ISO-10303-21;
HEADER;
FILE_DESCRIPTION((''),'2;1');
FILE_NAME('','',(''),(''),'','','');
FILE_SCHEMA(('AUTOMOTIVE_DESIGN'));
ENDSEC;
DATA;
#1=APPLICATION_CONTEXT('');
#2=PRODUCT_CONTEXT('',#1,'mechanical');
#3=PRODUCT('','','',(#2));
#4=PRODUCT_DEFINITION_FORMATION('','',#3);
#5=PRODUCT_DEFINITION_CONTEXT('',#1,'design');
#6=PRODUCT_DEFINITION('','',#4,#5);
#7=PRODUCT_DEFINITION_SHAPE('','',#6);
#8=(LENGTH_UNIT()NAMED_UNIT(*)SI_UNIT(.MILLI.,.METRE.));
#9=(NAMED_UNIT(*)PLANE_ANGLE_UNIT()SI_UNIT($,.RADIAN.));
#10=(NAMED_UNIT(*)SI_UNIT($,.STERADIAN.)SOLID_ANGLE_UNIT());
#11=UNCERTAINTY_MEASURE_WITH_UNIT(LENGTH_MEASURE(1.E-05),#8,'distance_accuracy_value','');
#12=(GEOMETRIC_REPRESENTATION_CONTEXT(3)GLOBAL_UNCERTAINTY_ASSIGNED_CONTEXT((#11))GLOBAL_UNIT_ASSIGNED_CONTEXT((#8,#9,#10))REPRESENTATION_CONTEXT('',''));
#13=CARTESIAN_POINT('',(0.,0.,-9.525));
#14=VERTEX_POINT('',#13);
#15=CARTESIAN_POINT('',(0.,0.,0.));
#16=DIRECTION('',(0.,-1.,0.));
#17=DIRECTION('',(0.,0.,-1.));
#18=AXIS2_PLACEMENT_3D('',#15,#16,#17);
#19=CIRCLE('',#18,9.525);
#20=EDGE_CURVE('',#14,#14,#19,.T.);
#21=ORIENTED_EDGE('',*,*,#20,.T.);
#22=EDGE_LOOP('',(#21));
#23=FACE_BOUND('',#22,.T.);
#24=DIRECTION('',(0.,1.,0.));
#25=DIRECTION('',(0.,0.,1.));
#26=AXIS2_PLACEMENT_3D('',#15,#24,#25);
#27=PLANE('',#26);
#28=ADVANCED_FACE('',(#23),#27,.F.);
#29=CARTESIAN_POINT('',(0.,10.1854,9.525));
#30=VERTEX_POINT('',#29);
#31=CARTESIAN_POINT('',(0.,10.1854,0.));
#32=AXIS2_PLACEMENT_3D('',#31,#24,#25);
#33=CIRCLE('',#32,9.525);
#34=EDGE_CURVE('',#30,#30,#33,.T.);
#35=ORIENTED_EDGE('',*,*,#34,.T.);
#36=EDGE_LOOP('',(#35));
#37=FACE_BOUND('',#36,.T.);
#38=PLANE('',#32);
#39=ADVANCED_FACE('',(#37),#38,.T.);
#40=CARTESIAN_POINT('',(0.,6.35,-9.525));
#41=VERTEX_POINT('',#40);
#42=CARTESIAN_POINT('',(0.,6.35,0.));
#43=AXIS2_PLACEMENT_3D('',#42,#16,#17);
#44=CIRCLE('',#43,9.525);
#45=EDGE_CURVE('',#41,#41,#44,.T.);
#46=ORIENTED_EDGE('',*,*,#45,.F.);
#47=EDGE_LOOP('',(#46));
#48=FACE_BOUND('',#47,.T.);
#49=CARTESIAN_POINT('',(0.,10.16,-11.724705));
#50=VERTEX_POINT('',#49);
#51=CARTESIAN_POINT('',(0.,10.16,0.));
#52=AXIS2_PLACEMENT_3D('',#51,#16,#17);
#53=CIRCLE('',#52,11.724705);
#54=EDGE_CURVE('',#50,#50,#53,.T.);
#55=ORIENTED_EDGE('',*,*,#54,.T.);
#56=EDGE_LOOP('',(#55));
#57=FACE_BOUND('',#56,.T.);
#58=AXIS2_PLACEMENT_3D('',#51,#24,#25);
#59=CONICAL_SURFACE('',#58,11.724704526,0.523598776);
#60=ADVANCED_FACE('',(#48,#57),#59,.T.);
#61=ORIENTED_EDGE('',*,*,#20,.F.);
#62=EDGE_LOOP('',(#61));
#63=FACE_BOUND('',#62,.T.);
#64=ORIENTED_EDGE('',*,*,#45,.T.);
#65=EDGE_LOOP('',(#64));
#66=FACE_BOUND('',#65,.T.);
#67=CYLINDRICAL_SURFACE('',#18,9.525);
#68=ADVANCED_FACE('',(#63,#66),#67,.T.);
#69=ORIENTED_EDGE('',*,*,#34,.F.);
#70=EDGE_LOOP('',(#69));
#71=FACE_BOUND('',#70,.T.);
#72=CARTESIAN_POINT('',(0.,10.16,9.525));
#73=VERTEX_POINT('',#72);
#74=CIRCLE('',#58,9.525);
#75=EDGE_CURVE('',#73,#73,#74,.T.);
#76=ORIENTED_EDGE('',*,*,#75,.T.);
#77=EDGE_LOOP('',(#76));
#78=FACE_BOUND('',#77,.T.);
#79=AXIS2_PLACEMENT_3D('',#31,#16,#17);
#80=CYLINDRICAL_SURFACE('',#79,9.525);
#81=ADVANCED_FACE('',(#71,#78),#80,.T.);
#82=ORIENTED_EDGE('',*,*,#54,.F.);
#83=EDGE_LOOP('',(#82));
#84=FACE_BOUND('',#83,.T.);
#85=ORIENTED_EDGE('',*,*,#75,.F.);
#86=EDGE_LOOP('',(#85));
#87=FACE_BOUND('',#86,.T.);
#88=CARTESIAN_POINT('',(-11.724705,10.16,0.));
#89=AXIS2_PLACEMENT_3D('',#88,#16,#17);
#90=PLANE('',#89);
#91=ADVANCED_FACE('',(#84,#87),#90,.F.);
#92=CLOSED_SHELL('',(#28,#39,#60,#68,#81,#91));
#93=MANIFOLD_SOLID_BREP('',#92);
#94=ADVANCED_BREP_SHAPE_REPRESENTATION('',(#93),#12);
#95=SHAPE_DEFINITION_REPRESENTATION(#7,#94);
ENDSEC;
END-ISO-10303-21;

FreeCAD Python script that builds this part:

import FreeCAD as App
import Part
import Sketcher
from FreeCAD import Vector
Q = App.Units.Quantity


def add_polygon(sketch, points):
    """Adds a closed chain of lines whose ends are joined by coincident constraints."""
    first, n = sketch.GeometryCount, len(points)
    for a, b in zip(points, points[1:] + points[:1]):
        sketch.addGeometry(Part.LineSegment(App.Vector(*a, 0), App.Vector(*b, 0)), False)
    for i in range(n):
        sketch.addConstraint(Sketcher.Constraint("Coincident", first + i, 2, first + (i + 1) % n, 1))

doc = App.newDocument("Part")
body = doc.addObject("PartDesign::Body", "Body")

sketch1 = body.newObject("Sketcher::SketchObject", "Sketch")
sketch1.AttachmentSupport = (doc.getObject("XY_Plane"), [""])
sketch1.MapMode = "FlatFace"
add_polygon(sketch1, [(-9.5, 0), (0, 0), (0, 10.2), (-11.7, 10.2), (-9.5, 6.3)])
sketch1.addConstraint([
    Sketcher.Constraint("Horizontal", 0),
    Sketcher.Constraint("Vertical", 1),
    Sketcher.Constraint("Horizontal", 2),
    Sketcher.Constraint("Vertical", 4),
    Sketcher.Constraint("Coincident", 0, 2, -1, 1),
    Sketcher.Constraint("DistanceY", 1, 1, 1, 2, Q("0.4 in")),
    Sketcher.Constraint("Angle", 3, Q("-60 deg")),
    Sketcher.Constraint("DistanceY", 4, 2, 4, 1, Q("0.25 in")),
    Sketcher.Constraint("DistanceX", 0, 1, 0, 2, Q("0.375 in")),
])
revolution = body.newObject("PartDesign::Revolution", "Revolution")
revolution.Profile = sketch1
revolution.ReferenceAxis = (sketch1, ["V_Axis"])
revolution.Angle = 360

sketch2 = body.newObject("Sketcher::SketchObject", "Sketch001")
sketch2.AttachmentSupport = (doc.getObject("XZ_Plane"), [""])
sketch2.MapMode = "FlatFace"
sketch2.AttachmentOffset = App.Placement(Vector(0, 0, -0.4 * 25.4), App.Rotation())
sketch2.addGeometry(Part.Circle(Vector(0, 0, 0), Vector(0, 0, 1), 10), False)
sketch2.addConstraint([
    Sketcher.Constraint("Coincident", 0, 3, -1, 1),
    Sketcher.Constraint("Diameter", 0, Q("0.75 in")),
])
pad1 = body.newObject("PartDesign::Pad", "Pad")
pad1.Profile = sketch2
pad1.Length = Q("0.001 in")
pad1.Reversed = True

doc.recompute()
